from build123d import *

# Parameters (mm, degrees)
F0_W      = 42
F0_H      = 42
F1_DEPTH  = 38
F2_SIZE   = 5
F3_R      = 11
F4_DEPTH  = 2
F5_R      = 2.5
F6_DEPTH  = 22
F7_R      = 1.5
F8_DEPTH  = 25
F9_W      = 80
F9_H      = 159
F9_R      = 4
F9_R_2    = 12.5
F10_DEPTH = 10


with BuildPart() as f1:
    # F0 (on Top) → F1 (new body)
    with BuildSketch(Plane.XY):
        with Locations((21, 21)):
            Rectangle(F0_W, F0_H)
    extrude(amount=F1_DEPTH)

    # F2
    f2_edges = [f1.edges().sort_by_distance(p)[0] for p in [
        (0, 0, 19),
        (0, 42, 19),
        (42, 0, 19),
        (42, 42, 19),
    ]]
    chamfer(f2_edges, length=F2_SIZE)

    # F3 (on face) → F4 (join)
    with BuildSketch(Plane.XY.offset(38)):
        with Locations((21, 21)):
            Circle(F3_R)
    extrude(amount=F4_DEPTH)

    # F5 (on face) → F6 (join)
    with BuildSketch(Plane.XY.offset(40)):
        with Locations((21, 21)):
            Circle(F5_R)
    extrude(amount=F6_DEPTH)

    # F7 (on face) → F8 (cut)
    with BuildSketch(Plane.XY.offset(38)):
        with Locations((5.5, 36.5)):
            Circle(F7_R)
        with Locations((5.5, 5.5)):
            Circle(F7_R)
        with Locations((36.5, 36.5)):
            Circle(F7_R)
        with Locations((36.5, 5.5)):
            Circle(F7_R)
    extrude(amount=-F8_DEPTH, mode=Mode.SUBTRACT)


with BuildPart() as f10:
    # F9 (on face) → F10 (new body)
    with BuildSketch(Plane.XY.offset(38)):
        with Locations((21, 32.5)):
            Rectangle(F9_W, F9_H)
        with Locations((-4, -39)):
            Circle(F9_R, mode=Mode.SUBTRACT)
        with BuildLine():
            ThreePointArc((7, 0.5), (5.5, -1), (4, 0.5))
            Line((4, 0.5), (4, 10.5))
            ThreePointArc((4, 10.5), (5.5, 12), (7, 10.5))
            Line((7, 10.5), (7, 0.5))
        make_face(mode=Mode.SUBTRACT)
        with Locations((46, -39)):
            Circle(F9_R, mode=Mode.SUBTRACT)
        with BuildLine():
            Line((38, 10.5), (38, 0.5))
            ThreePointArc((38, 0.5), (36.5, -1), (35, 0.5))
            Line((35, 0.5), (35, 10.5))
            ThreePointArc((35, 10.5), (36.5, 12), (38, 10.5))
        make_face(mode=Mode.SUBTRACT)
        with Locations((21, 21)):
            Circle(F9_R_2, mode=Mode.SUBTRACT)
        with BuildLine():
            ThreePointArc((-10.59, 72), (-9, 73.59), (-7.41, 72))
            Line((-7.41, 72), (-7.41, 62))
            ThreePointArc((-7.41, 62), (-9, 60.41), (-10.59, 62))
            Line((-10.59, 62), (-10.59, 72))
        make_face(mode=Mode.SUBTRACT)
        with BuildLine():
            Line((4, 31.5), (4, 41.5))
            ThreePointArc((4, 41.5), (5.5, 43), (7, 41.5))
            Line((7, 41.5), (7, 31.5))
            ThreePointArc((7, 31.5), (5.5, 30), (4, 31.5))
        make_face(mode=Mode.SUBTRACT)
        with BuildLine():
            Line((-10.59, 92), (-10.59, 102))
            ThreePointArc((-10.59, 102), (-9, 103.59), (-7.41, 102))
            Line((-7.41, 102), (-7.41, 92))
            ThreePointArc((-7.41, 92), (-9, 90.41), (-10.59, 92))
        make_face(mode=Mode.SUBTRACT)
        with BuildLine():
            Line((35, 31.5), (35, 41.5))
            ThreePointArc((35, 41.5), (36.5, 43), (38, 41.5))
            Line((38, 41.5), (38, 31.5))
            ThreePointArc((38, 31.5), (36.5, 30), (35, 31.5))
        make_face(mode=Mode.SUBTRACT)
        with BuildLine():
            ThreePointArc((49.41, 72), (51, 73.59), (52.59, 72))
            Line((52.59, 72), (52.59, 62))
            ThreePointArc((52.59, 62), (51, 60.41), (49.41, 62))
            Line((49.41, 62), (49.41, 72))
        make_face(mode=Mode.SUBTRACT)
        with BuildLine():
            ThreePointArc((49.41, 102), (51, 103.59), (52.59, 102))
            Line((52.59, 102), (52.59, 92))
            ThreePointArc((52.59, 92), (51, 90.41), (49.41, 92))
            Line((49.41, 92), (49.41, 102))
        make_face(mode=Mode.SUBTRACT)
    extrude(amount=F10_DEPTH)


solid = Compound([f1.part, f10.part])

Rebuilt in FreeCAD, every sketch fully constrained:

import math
import FreeCAD as App
import Part
import Sketcher


def edges_at(feature, points):
    """Names of the edges that pass closest to the given points."""
    edges = feature.Shape.Edges
    near = lambda p: min(range(len(edges)), key=lambda i: edges[i].distToShape(Part.Vertex(*p))[0])
    return sorted({f"Edge{near(p) + 1}" for p in points})

doc = App.newDocument("Part")
body = doc.addObject("PartDesign::Body", "Body")

sketch1 = body.newObject("Sketcher::SketchObject", "Sketch")
sketch1.AttachmentSupport = (doc.getObject("XY_Plane"), [""])
sketch1.MapMode = "FlatFace"
sketch1.addGeometry([
    Part.LineSegment(App.Vector(0, 42, 0), App.Vector(0, 0, 0)),
    Part.LineSegment(App.Vector(0, 0, 0), App.Vector(42, 0, 0)),
    Part.LineSegment(App.Vector(42, 0, 0), App.Vector(42, 42, 0)),
    Part.LineSegment(App.Vector(42, 42, 0), App.Vector(0, 42, 0)),
], False)
sketch1.addConstraint([
    Sketcher.Constraint("Coincident", 0, 2, 1, 1),
    Sketcher.Constraint("Coincident", 1, 2, 2, 1),
    Sketcher.Constraint("Coincident", 2, 2, 3, 1),
    Sketcher.Constraint("Coincident", 3, 2, 0, 1),
    Sketcher.Constraint("Vertical", 0),
    Sketcher.Constraint("Horizontal", 1),
    Sketcher.Constraint("Vertical", 2),
    Sketcher.Constraint("Horizontal", 3),
    Sketcher.Constraint("Coincident", 0, 2, -1, 1),
    Sketcher.Constraint("Equal", 3, 0),
    Sketcher.Constraint("DistanceX", 1, 1, 1, 2, 42.0),
])
pad1 = body.newObject("PartDesign::Pad", "Pad")
pad1.Profile = sketch1
pad1.Length = 38
doc.recompute()

chamfer = body.newObject("PartDesign::Chamfer", "Chamfer")
chamfer.Base = (pad1, edges_at(pad1, [
    (0, 0, 19),
    (0, 42, 19),
    (42, 0, 19),
    (42, 42, 19),
]))
chamfer.Size = 5

sketch2 = body.newObject("Sketcher::SketchObject", "Sketch001")
sketch2.AttachmentSupport = (doc.getObject("XY_Plane"), [""])
sketch2.MapMode = "FlatFace"
sketch2.AttachmentOffset = App.Placement(App.Vector(0, 0, 38), App.Rotation())
sketch2.addGeometry(Part.Circle(App.Vector(21, 21, 0), App.Vector(0, 0, 1), 11), False)
sketch2.addConstraint([
    Sketcher.Constraint("Diameter", 0, 22.0),
    Sketcher.Constraint("DistanceX", -1, 1, 0, 3, 21.0),
    Sketcher.Constraint("DistanceY", -1, 1, 0, 3, 21.0),
])
pad2 = body.newObject("PartDesign::Pad", "Pad001")
pad2.Profile = sketch2
pad2.Length = 2

sketch3 = body.newObject("Sketcher::SketchObject", "Sketch002")
sketch3.AttachmentSupport = (doc.getObject("XY_Plane"), [""])
sketch3.MapMode = "FlatFace"
sketch3.AttachmentOffset = App.Placement(App.Vector(0, 0, 40), App.Rotation())
sketch3.addGeometry(Part.Circle(App.Vector(21, 21, 0), App.Vector(0, 0, 1), 2.5), False)
sketch3.addConstraint([
    Sketcher.Constraint("Diameter", 0, 5.0),
    Sketcher.Constraint("DistanceX", -1, 1, 0, 3, 21.0),
    Sketcher.Constraint("DistanceY", -1, 1, 0, 3, 21.0),
])
pad3 = body.newObject("PartDesign::Pad", "Pad002")
pad3.Profile = sketch3
pad3.Length = 22

sketch4 = body.newObject("Sketcher::SketchObject", "Sketch003")
sketch4.AttachmentSupport = (doc.getObject("XY_Plane"), [""])
sketch4.MapMode = "FlatFace"
sketch4.AttachmentOffset = App.Placement(App.Vector(0, 0, 38), App.Rotation())
sketch4.addGeometry([
    Part.Circle(App.Vector(5.5, 36.5, 0), App.Vector(0, 0, 1), 1.5),
    Part.Circle(App.Vector(5.5, 5.5, 0), App.Vector(0, 0, 1), 1.5),
    Part.Circle(App.Vector(36.5, 36.5, 0), App.Vector(0, 0, 1), 1.5),
    Part.Circle(App.Vector(36.5, 5.5, 0), App.Vector(0, 0, 1), 1.5),
], False)
sketch4.addConstraint([
    Sketcher.Constraint("Equal", 0, 1),
    Sketcher.Constraint("Equal", 1, 2),
    Sketcher.Constraint("Equal", 2, 3),
    Sketcher.Constraint("Horizontal", 0, 3, 2, 3),
    Sketcher.Constraint("Horizontal", 1, 3, 3, 3),
    Sketcher.Constraint("Vertical", 0, 3, 1, 3),
    Sketcher.Constraint("Vertical", 2, 3, 3, 3),
    Sketcher.Constraint("Diameter", 0, 3.0),
    Sketcher.Constraint("DistanceY", 1, 3, 0, 3, 31.0),
    Sketcher.Constraint("DistanceX", 0, 3, 2, 3, 31.0),
    Sketcher.Constraint("DistanceX", -1, 1, 0, 3, 5.5),
    Sketcher.Constraint("DistanceY", -1, 1, 0, 3, 36.5),
])
pocket1 = body.newObject("PartDesign::Pocket", "Pocket")
pocket1.Profile = sketch4
pocket1.Length = 25
body2 = doc.addObject("PartDesign::Body", "Body001")

sketch5 = body2.newObject("Sketcher::SketchObject", "Sketch004")
sketch5.AttachmentSupport = (doc.getObject("XY_Plane001"), [""])
sketch5.MapMode = "FlatFace"
sketch5.AttachmentOffset = App.Placement(App.Vector(0, 0, 38), App.Rotation())
sketch5.addGeometry([
    Part.LineSegment(App.Vector(-19, 112, 0), App.Vector(-19, -47, 0)),
    Part.LineSegment(App.Vector(-19, -47, 0), App.Vector(61, -47, 0)),
    Part.LineSegment(App.Vector(61, -47, 0), App.Vector(61, 112, 0)),
    Part.LineSegment(App.Vector(61, 112, 0), App.Vector(-19, 112, 0)),
    Part.Circle(App.Vector(-4, -39, 0), App.Vector(0, 0, 1), 4),
    Part.LineSegment(App.Vector(7, 10.5, 0), App.Vector(7, 0.5, 0)),
    Part.ArcOfCircle(Part.Circle(App.Vector(5.5, 0.5, 0), App.Vector(0, 0, 1), 1.5), math.radians(180), math.radians(360)),
    Part.LineSegment(App.Vector(4, 0.5, 0), App.Vector(4, 10.5, 0)),
    Part.ArcOfCircle(Part.Circle(App.Vector(5.5, 10.5, 0), App.Vector(0, 0, 1), 1.5), math.radians(0), math.radians(180)),
    Part.Circle(App.Vector(21, 21, 0), App.Vector(0, 0, 1), 12.5),
    Part.Circle(App.Vector(46, -39, 0), App.Vector(0, 0, 1), 4),
    Part.ArcOfCircle(Part.Circle(App.Vector(36.5, 10.5, 0), App.Vector(0, 0, 1), 1.5), math.radians(0), math.radians(180)),
    Part.LineSegment(App.Vector(38, 10.5, 0), App.Vector(38, 0.5, 0)),
    Part.ArcOfCircle(Part.Circle(App.Vector(36.5, 0.5, 0), App.Vector(0, 0, 1), 1.5), math.radians(180), math.radians(360)),
    Part.LineSegment(App.Vector(35, 0.5, 0), App.Vector(35, 10.5, 0)),
    Part.ArcOfCircle(Part.Circle(App.Vector(5.5, 31.5, 0), App.Vector(0, 0, 1), 1.5), math.radians(180), math.radians(360)),
    Part.LineSegment(App.Vector(4, 31.5, 0), App.Vector(4, 41.5, 0)),
    Part.ArcOfCircle(Part.Circle(App.Vector(5.5, 41.5, 0), App.Vector(0, 0, 1), 1.5), math.radians(0), math.radians(180)),
    Part.LineSegment(App.Vector(7, 41.5, 0), App.Vector(7, 31.5, 0)),
    Part.LineSegment(App.Vector(-10.59, 62, 0), App.Vector(-10.59, 72, 0)),
    Part.ArcOfCircle(Part.Circle(App.Vector(-9, 72, 0), App.Vector(0, 0, 1), 1.59), math.radians(0), math.radians(180)),
    Part.LineSegment(App.Vector(-7.41, 72, 0), App.Vector(-7.41, 62, 0)),
    Part.ArcOfCircle(Part.Circle(App.Vector(-9, 62, 0), App.Vector(0, 0, 1), 1.59), math.radians(180), math.radians(360)),
    Part.ArcOfCircle(Part.Circle(App.Vector(-9, 92, 0), App.Vector(0, 0, 1), 1.59), math.radians(180), math.radians(360)),
    Part.LineSegment(App.Vector(-10.59, 92, 0), App.Vector(-10.59, 102, 0)),
    Part.ArcOfCircle(Part.Circle(App.Vector(-9, 102, 0), App.Vector(0, 0, 1), 1.59), math.radians(0), math.radians(180)),
    Part.LineSegment(App.Vector(-7.41, 102, 0), App.Vector(-7.41, 92, 0)),
    Part.ArcOfCircle(Part.Circle(App.Vector(36.5, 31.5, 0), App.Vector(0, 0, 1), 1.5), math.radians(180), math.radians(360)),
    Part.LineSegment(App.Vector(35, 31.5, 0), App.Vector(35, 41.5, 0)),
    Part.ArcOfCircle(Part.Circle(App.Vector(36.5, 41.5, 0), App.Vector(0, 0, 1), 1.5), math.radians(0), math.radians(180)),
    Part.LineSegment(App.Vector(38, 41.5, 0), App.Vector(38, 31.5, 0)),
    Part.LineSegment(App.Vector(49.41, 62, 0), App.Vector(49.41, 72, 0)),
    Part.ArcOfCircle(Part.Circle(App.Vector(51, 72, 0), App.Vector(0, 0, 1), 1.59), math.radians(0), math.radians(180)),
    Part.LineSegment(App.Vector(52.59, 72, 0), App.Vector(52.59, 62, 0)),
    Part.ArcOfCircle(Part.Circle(App.Vector(51, 62, 0), App.Vector(0, 0, 1), 1.59), math.radians(180), math.radians(360)),
    Part.LineSegment(App.Vector(49.41, 92, 0), App.Vector(49.41, 102, 0)),
    Part.ArcOfCircle(Part.Circle(App.Vector(51, 102, 0), App.Vector(0, 0, 1), 1.59), math.radians(0), math.radians(180)),
    Part.LineSegment(App.Vector(52.59, 102, 0), App.Vector(52.59, 92, 0)),
    Part.ArcOfCircle(Part.Circle(App.Vector(51, 92, 0), App.Vector(0, 0, 1), 1.59), math.radians(180), math.radians(360)),
], False)
sketch5.addConstraint([
    Sketcher.Constraint("Coincident", 0, 2, 1, 1),
    Sketcher.Constraint("Coincident", 1, 2, 2, 1),
    Sketcher.Constraint("Coincident", 2, 2, 3, 1),
    Sketcher.Constraint("Coincident", 3, 2, 0, 1),
    Sketcher.Constraint("Tangent", 5, 2, 6, 2),
    Sketcher.Constraint("Tangent", 6, 1, 7, 1),
    Sketcher.Constraint("Tangent", 7, 2, 8, 2),
    Sketcher.Constraint("Tangent", 8, 1, 5, 1),
    Sketcher.Constraint("Tangent", 11, 1, 12, 1),
    Sketcher.Constraint("Tangent", 12, 2, 13, 2),
    Sketcher.Constraint("Tangent", 13, 1, 14, 1),
    Sketcher.Constraint("Tangent", 14, 2, 11, 2),
    Sketcher.Constraint("Tangent", 15, 1, 16, 1),
    Sketcher.Constraint("Tangent", 16, 2, 17, 2),
    Sketcher.Constraint("Tangent", 17, 1, 18, 1),
    Sketcher.Constraint("Tangent", 18, 2, 15, 2),
    Sketcher.Constraint("Tangent", 19, 2, 20, 2),
    Sketcher.Constraint("Tangent", 20, 1, 21, 1),
    Sketcher.Constraint("Tangent", 21, 2, 22, 2),
    Sketcher.Constraint("Tangent", 22, 1, 19, 1),
    Sketcher.Constraint("Tangent", 23, 1, 24, 1),
    Sketcher.Constraint("Tangent", 24, 2, 25, 2),
    Sketcher.Constraint("Tangent", 25, 1, 26, 1),
    Sketcher.Constraint("Tangent", 26, 2, 23, 2),
    Sketcher.Constraint("Tangent", 27, 1, 28, 1),
    Sketcher.Constraint("Tangent", 28, 2, 29, 2),
    Sketcher.Constraint("Tangent", 29, 1, 30, 1),
    Sketcher.Constraint("Tangent", 30, 2, 27, 2),
    Sketcher.Constraint("Tangent", 31, 2, 32, 2),
    Sketcher.Constraint("Tangent", 32, 1, 33, 1),
    Sketcher.Constraint("Tangent", 33, 2, 34, 2),
    Sketcher.Constraint("Tangent", 34, 1, 31, 1),
    Sketcher.Constraint("Tangent", 35, 2, 36, 2),
    Sketcher.Constraint("Tangent", 36, 1, 37, 1),
    Sketcher.Constraint("Tangent", 37, 2, 38, 2),
    Sketcher.Constraint("Tangent", 38, 1, 35, 1),
    Sketcher.Constraint("Vertical", 0),
    Sketcher.Constraint("Horizontal", 1),
    Sketcher.Constraint("Vertical", 2),
    Sketcher.Constraint("Horizontal", 3),
    Sketcher.Constraint("Vertical", 5),
    Sketcher.Constraint("Vertical", 7),
    Sketcher.Constraint("Vertical", 12),
    Sketcher.Constraint("Vertical", 14),
    Sketcher.Constraint("Vertical", 16),
    Sketcher.Constraint("Vertical", 18),
    Sketcher.Constraint("Vertical", 19),
    Sketcher.Constraint("Vertical", 21),
    Sketcher.Constraint("Vertical", 24),
    Sketcher.Constraint("Vertical", 26),
    Sketcher.Constraint("Vertical", 28),
    Sketcher.Constraint("Vertical", 30),
    Sketcher.Constraint("Vertical", 31),
    Sketcher.Constraint("Vertical", 33),
    Sketcher.Constraint("Vertical", 35),
    Sketcher.Constraint("Vertical", 37),
    Sketcher.Constraint("Equal", 4, 10),
    Sketcher.Constraint("Equal", 8, 11),
    Sketcher.Constraint("Equal", 13, 15),
    Sketcher.Constraint("Equal", 22, 23),
    Sketcher.Constraint("Equal", 17, 27),
    Sketcher.Constraint("Equal", 25, 32),
    Sketcher.Constraint("Equal", 34, 36),
    Sketcher.Constraint("Horizontal", 4, 3, 10, 3),
    Sketcher.Constraint("Horizontal", 8, 3, 11, 3),
    Sketcher.Constraint("Horizontal", 6, 3, 13, 3),
    Sketcher.Constraint("Horizontal", 15, 3, 27, 3),
    Sketcher.Constraint("Horizontal", 17, 3, 29, 3),
    Sketcher.Constraint("Horizontal", 20, 3, 32, 3),
    Sketcher.Constraint("Horizontal", 22, 3, 34, 3),
    Sketcher.Constraint("Horizontal", 25, 3, 36, 3),
    Sketcher.Constraint("Horizontal", 23, 3, 38, 3),
    Sketcher.Constraint("Vertical", 8, 3, 15, 3),
    Sketcher.Constraint("Vertical", 22, 3, 23, 3),
    Sketcher.Constraint("Vertical", 13, 3, 27, 3),
    Sketcher.Constraint("Vertical", 34, 3, 36, 3),
    Sketcher.Constraint("Equal", 14, 16),
    Sketcher.Constraint("Equal", 18, 19),
    Sketcher.Constraint("Equal", 21, 24),
    Sketcher.Constraint("Diameter", 4, 8.0),
    Sketcher.Constraint("Diameter", 9, 25.0),
    Sketcher.Constraint("Radius", 6, 1.5),
    Sketcher.Constraint("DistanceX", 1, 1, 1, 2, 80.0),
    Sketcher.Constraint("DistanceY", 0, 2, 0, 1, 159.0),
    Sketcher.Constraint("DistanceY", 5, 2, 5, 1, 10.0),
    Sketcher.Constraint("Radius", 20, 1.59),
    Sketcher.Constraint("DistanceX", 4, 3, -1, 1, 4.0),
    Sketcher.Constraint("DistanceY", 4, 3, -1, 1, 39.0),
    Sketcher.Constraint("DistanceX", -1, 1, 9, 3, 21.0),
    Sketcher.Constraint("DistanceY", -1, 1, 9, 3, 21.0),
    Sketcher.Constraint("DistanceX", -1, 1, 10, 3, 46.0),
    Sketcher.Constraint("DistanceX", 20, 3, -1, 1, 9.0),
    Sketcher.Constraint("DistanceY", -1, 1, 20, 3, 72.0),
    Sketcher.Constraint("DistanceY", -1, 1, 23, 3, 92.0),
    Sketcher.Constraint("DistanceX", -1, 1, 32, 3, 51.0),
    Sketcher.Constraint("DistanceX", 0, 2, -1, 1, 19.0),
    Sketcher.Constraint("DistanceY", 0, 2, -1, 1, 47.0),
    Sketcher.Constraint("DistanceX", -1, 1, 5, 2, 7.0),
    Sketcher.Constraint("DistanceX", -1, 1, 11, 1, 38.0),
    Sketcher.Constraint("DistanceY", 8, 3, 15, 3, 21.0),
    Sketcher.Constraint("DistanceY", -1, 1, 6, 3, 0.5),
])
pad4 = body2.newObject("PartDesign::Pad", "Pad003")
pad4.Profile = sketch5
pad4.Length = 10

doc.recompute()
